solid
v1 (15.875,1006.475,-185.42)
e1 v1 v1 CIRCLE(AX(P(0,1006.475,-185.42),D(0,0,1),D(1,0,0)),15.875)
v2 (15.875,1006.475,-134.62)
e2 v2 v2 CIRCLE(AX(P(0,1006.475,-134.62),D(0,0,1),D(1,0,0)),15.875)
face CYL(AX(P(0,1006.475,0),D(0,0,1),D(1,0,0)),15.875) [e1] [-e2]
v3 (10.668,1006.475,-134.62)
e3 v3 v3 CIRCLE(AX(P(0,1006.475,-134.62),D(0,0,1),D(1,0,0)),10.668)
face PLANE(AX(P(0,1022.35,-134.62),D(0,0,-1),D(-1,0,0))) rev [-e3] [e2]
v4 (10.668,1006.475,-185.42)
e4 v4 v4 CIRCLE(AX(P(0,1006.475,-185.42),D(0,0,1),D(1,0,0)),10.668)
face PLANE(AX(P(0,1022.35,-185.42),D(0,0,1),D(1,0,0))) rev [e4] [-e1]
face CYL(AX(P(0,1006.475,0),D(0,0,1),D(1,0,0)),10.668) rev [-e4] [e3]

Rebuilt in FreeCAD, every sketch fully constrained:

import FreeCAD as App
import Part
import Sketcher

V = App.Vector
Q = App.Units.Quantity

doc = App.newDocument("Part")
body = doc.addObject("PartDesign::Body", "Body")

sketch1 = body.newObject("Sketcher::SketchObject", "Sketch")
sketch1.AttachmentSupport = (doc.getObject("YZ_Plane"), [""])
sketch1.MapMode = "FlatFace"
sketch1.addGeometry(Part.LineSegment(V(1022, -135, 0), V(1017, -135, 0)), False)
sketch1.addGeometry(Part.LineSegment(V(1017, -135, 0), V(1017, -185, 0)), False)
sketch1.addGeometry(Part.LineSegment(V(1017, -185, 0), V(1022, -185, 0)), False)
sketch1.addGeometry(Part.LineSegment(V(1022, -185, 0), V(1022, -135, 0)), False)
sketch1.addGeometry(Part.LineSegment(V(1006, -135, 0), V(1006, -185, 0)), True)
sketch1.addConstraint(Sketcher.Constraint("Coincident", 0, 2, 1, 1))
sketch1.addConstraint(Sketcher.Constraint("Coincident", 1, 2, 2, 1))
sketch1.addConstraint(Sketcher.Constraint("Coincident", 2, 2, 3, 1))
sketch1.addConstraint(Sketcher.Constraint("Coincident", 3, 2, 0, 1))
sketch1.addConstraint(Sketcher.Constraint("Horizontal", 0))
sketch1.addConstraint(Sketcher.Constraint("Vertical", 1))
sketch1.addConstraint(Sketcher.Constraint("Horizontal", 2))
sketch1.addConstraint(Sketcher.Constraint("Vertical", 3))
sketch1.addConstraint(Sketcher.Constraint("Vertical", 4))
sketch1.addConstraint(Sketcher.Constraint("Horizontal", 3, 2, 4, 1))
sketch1.addConstraint(Sketcher.Constraint("Horizontal", 2, 2, 4, 2))
sketch1.addConstraint(Sketcher.Constraint("DistanceY", 1, 2, 1, 1, Q("2 in")))
sketch1.addConstraint(Sketcher.Constraint("DistanceY", 0, 2, -1, 1, Q("5.3 in")))
sketch1.addConstraint(Sketcher.Constraint("DistanceX", 0, 2, 0, 1, Q("0.205 in")))
sketch1.addConstraint(Sketcher.Constraint("DistanceX", -1, 1, 2, 2, Q("40.25 in")))
sketch1.addConstraint(Sketcher.Constraint("DistanceX", 4, 1, 0, 2, Q("0.42 in")))
revolution = body.newObject("PartDesign::Revolution", "Revolution")
revolution.Profile = sketch1
revolution.ReferenceAxis = (sketch1, ["Axis0"])
revolution.Angle = 360

doc.recompute()
